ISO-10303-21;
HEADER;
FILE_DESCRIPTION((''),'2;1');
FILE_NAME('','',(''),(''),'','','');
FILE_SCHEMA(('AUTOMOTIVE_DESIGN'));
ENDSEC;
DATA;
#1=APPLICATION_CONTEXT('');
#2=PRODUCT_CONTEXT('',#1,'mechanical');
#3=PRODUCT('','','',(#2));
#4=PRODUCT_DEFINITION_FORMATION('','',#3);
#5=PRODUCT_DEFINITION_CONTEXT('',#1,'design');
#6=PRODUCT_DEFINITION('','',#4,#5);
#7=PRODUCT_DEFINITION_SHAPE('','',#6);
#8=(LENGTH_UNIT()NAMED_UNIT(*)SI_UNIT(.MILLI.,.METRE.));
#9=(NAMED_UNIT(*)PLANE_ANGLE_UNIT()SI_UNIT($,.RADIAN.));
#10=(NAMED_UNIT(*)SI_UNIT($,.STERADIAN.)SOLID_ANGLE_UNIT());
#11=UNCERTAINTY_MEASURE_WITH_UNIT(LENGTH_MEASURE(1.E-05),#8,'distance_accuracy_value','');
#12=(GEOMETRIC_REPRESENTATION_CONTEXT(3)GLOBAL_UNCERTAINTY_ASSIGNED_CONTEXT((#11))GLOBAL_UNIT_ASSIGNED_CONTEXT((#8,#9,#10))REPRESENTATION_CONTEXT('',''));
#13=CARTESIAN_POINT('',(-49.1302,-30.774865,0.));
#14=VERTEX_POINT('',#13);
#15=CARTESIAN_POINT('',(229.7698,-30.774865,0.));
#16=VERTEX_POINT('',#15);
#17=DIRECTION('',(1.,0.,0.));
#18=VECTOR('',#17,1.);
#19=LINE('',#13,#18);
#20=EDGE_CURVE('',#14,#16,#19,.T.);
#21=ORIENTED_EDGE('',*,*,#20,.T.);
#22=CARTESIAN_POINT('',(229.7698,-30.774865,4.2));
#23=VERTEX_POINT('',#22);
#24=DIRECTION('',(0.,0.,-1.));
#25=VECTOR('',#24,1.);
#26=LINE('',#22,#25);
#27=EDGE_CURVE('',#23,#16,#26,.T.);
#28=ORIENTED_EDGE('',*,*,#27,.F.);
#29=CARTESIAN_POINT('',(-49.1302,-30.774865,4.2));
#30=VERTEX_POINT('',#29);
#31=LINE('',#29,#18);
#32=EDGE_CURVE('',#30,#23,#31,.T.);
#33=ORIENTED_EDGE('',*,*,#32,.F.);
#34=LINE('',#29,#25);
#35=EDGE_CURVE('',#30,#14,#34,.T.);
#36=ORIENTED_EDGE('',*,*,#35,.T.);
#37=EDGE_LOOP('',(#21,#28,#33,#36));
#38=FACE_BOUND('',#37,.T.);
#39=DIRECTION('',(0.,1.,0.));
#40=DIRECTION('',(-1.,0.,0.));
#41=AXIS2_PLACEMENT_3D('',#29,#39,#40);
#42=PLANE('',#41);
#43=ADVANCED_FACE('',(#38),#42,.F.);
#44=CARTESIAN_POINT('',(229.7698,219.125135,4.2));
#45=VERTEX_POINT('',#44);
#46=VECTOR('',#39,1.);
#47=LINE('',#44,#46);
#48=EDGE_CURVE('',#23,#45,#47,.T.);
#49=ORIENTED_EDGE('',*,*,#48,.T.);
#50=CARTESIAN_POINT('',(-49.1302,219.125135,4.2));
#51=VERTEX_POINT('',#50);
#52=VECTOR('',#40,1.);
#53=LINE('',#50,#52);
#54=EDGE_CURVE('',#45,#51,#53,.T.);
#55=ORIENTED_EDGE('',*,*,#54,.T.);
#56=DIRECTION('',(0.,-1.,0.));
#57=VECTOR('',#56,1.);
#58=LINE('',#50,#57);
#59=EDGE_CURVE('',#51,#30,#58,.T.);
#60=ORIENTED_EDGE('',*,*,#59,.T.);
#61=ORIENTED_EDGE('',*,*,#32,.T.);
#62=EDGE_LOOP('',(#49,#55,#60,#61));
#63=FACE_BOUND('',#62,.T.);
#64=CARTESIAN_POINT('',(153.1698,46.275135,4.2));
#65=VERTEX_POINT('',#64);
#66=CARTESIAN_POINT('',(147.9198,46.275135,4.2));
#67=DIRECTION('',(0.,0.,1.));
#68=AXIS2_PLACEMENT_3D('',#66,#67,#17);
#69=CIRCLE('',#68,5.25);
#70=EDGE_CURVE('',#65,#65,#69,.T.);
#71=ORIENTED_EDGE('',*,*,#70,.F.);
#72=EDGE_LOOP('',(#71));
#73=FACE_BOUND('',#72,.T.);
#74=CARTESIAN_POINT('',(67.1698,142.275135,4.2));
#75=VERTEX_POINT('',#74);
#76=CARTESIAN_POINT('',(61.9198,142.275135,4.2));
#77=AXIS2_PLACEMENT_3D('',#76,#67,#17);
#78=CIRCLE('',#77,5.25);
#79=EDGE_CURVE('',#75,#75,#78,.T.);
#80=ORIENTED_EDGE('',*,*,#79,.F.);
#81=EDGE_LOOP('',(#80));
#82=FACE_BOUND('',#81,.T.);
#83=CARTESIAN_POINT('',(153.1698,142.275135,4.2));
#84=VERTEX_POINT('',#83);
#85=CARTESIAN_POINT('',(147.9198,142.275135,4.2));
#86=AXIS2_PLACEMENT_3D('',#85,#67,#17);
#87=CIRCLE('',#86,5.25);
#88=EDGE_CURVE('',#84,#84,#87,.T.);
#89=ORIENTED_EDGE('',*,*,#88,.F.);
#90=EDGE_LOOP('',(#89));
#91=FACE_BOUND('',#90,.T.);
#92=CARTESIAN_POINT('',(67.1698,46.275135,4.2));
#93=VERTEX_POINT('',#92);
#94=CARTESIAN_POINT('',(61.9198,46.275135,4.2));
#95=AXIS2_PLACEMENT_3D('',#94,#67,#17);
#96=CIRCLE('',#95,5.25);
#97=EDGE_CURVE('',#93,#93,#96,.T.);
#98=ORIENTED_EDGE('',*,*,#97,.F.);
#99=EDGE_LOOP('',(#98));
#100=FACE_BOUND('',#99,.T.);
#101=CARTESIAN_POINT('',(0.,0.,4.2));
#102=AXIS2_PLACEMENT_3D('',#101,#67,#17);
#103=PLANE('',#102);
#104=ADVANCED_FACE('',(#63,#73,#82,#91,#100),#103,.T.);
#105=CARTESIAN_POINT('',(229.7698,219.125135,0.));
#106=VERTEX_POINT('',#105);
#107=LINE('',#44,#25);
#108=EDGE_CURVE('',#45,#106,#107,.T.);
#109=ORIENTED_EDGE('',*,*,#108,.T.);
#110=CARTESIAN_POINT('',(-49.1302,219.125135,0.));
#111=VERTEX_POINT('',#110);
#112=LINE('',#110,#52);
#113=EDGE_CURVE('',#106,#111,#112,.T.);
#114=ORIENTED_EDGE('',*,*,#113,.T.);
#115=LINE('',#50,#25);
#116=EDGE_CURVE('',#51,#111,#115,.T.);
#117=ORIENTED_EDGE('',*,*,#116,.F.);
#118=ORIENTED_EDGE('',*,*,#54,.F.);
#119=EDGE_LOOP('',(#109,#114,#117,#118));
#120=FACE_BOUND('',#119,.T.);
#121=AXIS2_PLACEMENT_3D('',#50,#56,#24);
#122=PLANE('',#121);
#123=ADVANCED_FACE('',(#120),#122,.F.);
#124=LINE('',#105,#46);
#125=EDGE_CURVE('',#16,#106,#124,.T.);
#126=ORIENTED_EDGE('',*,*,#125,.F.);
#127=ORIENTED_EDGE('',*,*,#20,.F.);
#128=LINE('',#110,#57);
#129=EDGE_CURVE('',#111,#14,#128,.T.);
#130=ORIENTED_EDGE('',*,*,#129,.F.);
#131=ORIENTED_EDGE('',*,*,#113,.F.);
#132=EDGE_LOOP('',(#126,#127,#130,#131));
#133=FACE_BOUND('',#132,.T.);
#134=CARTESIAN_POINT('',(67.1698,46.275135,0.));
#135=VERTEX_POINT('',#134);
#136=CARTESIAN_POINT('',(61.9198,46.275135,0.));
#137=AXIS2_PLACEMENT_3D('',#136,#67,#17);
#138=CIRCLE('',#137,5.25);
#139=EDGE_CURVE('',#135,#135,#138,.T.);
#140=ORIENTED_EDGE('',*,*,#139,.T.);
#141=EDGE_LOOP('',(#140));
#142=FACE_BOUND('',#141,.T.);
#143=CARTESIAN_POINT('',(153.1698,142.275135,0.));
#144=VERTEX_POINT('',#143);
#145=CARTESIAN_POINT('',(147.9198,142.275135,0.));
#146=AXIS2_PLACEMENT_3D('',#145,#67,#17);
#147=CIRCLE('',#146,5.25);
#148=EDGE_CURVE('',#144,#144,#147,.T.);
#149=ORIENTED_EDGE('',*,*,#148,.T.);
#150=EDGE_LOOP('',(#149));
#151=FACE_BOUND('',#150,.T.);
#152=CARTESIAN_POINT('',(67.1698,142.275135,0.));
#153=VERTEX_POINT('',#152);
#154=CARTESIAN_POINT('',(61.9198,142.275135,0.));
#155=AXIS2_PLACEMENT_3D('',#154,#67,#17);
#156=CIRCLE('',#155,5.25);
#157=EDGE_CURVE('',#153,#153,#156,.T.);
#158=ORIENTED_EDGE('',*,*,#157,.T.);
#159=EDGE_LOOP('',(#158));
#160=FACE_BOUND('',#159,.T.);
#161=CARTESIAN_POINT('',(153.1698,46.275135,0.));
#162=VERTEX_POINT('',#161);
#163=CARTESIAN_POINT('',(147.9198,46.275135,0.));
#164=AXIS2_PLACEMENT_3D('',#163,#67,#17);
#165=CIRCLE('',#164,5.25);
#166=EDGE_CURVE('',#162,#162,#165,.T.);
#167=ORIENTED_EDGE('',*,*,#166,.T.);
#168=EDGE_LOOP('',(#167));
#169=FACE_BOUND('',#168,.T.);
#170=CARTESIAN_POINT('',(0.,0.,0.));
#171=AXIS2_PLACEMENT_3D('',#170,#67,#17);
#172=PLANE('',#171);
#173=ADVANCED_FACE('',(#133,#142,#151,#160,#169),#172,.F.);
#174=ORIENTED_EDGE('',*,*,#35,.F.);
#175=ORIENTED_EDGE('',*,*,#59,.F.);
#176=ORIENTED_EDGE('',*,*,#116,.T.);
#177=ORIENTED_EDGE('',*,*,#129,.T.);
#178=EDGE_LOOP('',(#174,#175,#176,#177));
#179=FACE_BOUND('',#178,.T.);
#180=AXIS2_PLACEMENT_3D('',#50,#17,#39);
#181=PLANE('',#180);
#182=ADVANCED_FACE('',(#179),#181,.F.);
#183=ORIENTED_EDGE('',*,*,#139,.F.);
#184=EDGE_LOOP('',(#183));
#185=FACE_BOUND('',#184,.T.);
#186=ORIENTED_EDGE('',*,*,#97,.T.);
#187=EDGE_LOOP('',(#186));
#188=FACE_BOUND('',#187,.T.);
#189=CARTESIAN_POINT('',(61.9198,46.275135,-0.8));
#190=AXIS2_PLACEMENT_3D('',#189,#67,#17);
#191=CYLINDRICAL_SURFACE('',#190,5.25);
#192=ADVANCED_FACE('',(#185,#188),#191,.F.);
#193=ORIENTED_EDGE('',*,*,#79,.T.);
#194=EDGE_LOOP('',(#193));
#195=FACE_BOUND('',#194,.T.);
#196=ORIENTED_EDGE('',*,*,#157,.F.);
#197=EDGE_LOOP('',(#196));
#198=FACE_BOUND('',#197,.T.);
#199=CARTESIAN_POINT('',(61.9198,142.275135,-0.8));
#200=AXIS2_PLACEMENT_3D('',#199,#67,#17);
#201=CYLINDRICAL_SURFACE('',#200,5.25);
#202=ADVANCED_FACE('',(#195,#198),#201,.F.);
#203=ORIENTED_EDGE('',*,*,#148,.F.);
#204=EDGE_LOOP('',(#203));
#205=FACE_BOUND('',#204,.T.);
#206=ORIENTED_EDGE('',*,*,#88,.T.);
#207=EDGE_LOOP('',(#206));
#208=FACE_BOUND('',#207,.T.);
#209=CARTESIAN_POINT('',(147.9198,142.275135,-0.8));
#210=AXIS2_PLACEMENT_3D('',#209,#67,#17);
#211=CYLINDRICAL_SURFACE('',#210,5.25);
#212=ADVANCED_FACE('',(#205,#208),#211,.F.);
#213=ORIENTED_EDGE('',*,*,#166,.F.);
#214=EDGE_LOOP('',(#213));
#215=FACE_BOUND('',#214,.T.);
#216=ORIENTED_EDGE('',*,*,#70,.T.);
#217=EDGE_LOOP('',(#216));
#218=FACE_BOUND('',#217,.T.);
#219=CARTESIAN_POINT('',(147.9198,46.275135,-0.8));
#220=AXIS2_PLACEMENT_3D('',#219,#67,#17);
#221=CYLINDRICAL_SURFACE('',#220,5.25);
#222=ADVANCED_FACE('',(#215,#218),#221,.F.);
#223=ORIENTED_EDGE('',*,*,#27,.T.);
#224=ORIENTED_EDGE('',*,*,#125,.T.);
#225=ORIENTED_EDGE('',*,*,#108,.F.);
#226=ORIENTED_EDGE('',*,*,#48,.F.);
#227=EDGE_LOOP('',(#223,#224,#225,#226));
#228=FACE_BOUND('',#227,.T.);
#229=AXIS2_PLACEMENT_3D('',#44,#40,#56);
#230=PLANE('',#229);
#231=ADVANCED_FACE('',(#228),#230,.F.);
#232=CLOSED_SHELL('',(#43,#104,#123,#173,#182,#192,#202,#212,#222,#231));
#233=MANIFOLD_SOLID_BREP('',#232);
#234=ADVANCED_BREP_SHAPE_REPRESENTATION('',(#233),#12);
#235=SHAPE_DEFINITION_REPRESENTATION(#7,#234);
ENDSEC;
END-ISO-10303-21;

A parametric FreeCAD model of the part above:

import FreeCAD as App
import Part
import Sketcher
from FreeCAD import Vector
Q = App.Units.Quantity


def add_polygon(sketch, points):
    """Adds a closed chain of lines whose ends are joined by coincident constraints."""
    first, n = sketch.GeometryCount, len(points)
    for a, b in zip(points, points[1:] + points[:1]):
        sketch.addGeometry(Part.LineSegment(App.Vector(*a, 0), App.Vector(*b, 0)), False)
    for i in range(n):
        sketch.addConstraint(Sketcher.Constraint("Coincident", first + i, 2, first + (i + 1) % n, 1))

doc = App.newDocument("Part")
body = doc.addObject("PartDesign::Body", "Body")

# Sketch on XY plane
sketch1 = body.newObject("Sketcher::SketchObject", "Sketch")
sketch1.AttachmentSupport = (doc.getObject("XY_Plane"), [""])
sketch1.MapMode = "FlatFace"
add_polygon(sketch1, [(-49.1302, 219.125135), (-49.1302, -30.774865), (229.7698, -30.774865), (229.7698, 219.125135)])  # lines 0-3
sketch1.addConstraint(Sketcher.Constraint("Vertical", 0))
sketch1.addConstraint(Sketcher.Constraint("Horizontal", 1))
sketch1.addConstraint(Sketcher.Constraint("Vertical", 2))
sketch1.addConstraint(Sketcher.Constraint("Horizontal", 3))
sketch1.addConstraint(Sketcher.Constraint("DistanceX", 1, 1, 1, 2, Q("278.9 mm")))
sketch1.addConstraint(Sketcher.Constraint("DistanceY", 0, 2, 0, 1, Q("249.9 mm")))
sketch1.addConstraint(Sketcher.Constraint("DistanceX", 0, 2, -1, 1, Q("49.1302 mm")))
sketch1.addConstraint(Sketcher.Constraint("DistanceY", 0, 2, -1, 1, Q("30.774865 mm")))
pad1 = body.newObject("PartDesign::Pad", "Pad")
pad1.Profile = sketch1
pad1.Length = 4.2

# Sketch on XY plane
sketch2 = body.newObject("Sketcher::SketchObject", "Sketch001")
sketch2.AttachmentSupport = (doc.getObject("XY_Plane"), [""])
sketch2.MapMode = "FlatFace"
sketch2.AttachmentOffset = App.Placement(Vector(0, 0, 4.2), App.Rotation())
sketch2.addGeometry(Part.Circle(Vector(61.9198, 142.275135, 0), Vector(0, 0, 1), 5.25), False)
sketch2.addGeometry(Part.Circle(Vector(61.9198, 46.275135, 0), Vector(0, 0, 1), 5.25), False)
sketch2.addGeometry(Part.Circle(Vector(147.9198, 142.275135, 0), Vector(0, 0, 1), 5.25), False)
sketch2.addGeometry(Part.Circle(Vector(147.9198, 46.275135, 0), Vector(0, 0, 1), 5.25), False)
sketch2.addConstraint(Sketcher.Constraint("Equal", 0, 1))
sketch2.addConstraint(Sketcher.Constraint("Equal", 1, 2))
sketch2.addConstraint(Sketcher.Constraint("Equal", 2, 3))
sketch2.addConstraint(Sketcher.Constraint("Horizontal", 0, 3, 2, 3))
sketch2.addConstraint(Sketcher.Constraint("Horizontal", 1, 3, 3, 3))
sketch2.addConstraint(Sketcher.Constraint("Vertical", 0, 3, 1, 3))
sketch2.addConstraint(Sketcher.Constraint("Vertical", 2, 3, 3, 3))
sketch2.addConstraint(Sketcher.Constraint("Diameter", 0, Q("10.5 mm")))
sketch2.addConstraint(Sketcher.Constraint("DistanceY", 1, 3, 0, 3, Q("96 mm")))
sketch2.addConstraint(Sketcher.Constraint("DistanceX", 0, 3, 2, 3, Q("86 mm")))
sketch2.addConstraint(Sketcher.Constraint("DistanceX", -1, 1, 0, 3, Q("61.9198 mm")))
sketch2.addConstraint(Sketcher.Constraint("DistanceY", -1, 1, 0, 3, Q("142.275135 mm")))
pocket1 = body.newObject("PartDesign::Pocket", "Pocket")
pocket1.Profile = sketch2
pocket1.Length = 5

doc.recompute()
